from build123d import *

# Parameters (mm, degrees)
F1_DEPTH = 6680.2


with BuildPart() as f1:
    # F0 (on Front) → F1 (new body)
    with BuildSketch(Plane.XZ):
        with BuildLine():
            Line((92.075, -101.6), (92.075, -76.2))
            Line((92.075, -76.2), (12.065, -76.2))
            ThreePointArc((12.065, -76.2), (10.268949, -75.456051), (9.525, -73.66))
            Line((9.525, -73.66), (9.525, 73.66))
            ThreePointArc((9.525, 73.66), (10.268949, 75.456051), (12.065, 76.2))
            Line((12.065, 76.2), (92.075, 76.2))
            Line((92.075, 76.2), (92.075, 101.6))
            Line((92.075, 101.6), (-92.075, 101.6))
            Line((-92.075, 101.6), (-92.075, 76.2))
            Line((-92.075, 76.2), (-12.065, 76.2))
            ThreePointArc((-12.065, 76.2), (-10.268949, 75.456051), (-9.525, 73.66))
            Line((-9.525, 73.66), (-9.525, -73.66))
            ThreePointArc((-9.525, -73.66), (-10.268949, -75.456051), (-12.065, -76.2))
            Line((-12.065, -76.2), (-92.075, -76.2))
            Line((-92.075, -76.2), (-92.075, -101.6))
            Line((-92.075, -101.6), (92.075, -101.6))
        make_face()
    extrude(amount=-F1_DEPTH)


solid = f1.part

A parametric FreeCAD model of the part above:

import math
import FreeCAD as App
import Part
import Sketcher

V = App.Vector
Q = App.Units.Quantity

doc = App.newDocument("Part")
body = doc.addObject("PartDesign::Body", "Body")

# Sketch on XZ plane
sketch1 = body.newObject("Sketcher::SketchObject", "Sketch")
sketch1.AttachmentSupport = (doc.getObject("XZ_Plane"), [""])
sketch1.MapMode = "FlatFace"
sketch1.addGeometry(Part.LineSegment(V(92.1, -101.6, 0), V(92.1, -76.2, 0)), False)
sketch1.addGeometry(Part.LineSegment(V(92.1, -76.2, 0), V(12.1, -76.2, 0)), False)
sketch1.addGeometry(Part.ArcOfCircle(Part.Circle(V(12.1, -73.7, 0), V(0, 0, 1), 2.5), math.radians(-180), math.radians(-90)), False)
sketch1.addGeometry(Part.LineSegment(V(9.5, -73.7, 0), V(9.5, 73.7, 0)), False)
sketch1.addGeometry(Part.ArcOfCircle(Part.Circle(V(12.1, 73.7, 0), V(0, 0, 1), 2.5), math.radians(90), math.radians(180)), False)
sketch1.addGeometry(Part.LineSegment(V(12.1, 76.2, 0), V(92.1, 76.2, 0)), False)
sketch1.addGeometry(Part.LineSegment(V(92.1, 76.2, 0), V(92.1, 101.6, 0)), False)
sketch1.addGeometry(Part.LineSegment(V(92.1, 101.6, 0), V(-92.1, 101.6, 0)), False)
sketch1.addGeometry(Part.LineSegment(V(-92.1, 101.6, 0), V(-92.1, 76.2, 0)), False)
sketch1.addGeometry(Part.LineSegment(V(-92.1, 76.2, 0), V(-12.1, 76.2, 0)), False)
sketch1.addGeometry(Part.ArcOfCircle(Part.Circle(V(-12.1, 73.7, 0), V(0, 0, 1), 2.5), math.radians(0), math.radians(90)), False)
sketch1.addGeometry(Part.LineSegment(V(-9.5, 73.7, 0), V(-9.5, -73.7, 0)), False)
sketch1.addGeometry(Part.ArcOfCircle(Part.Circle(V(-12.1, -73.7, 0), V(0, 0, 1), 2.5), math.radians(-90), math.radians(0)), False)
sketch1.addGeometry(Part.LineSegment(V(-12.1, -76.2, 0), V(-92.1, -76.2, 0)), False)
sketch1.addGeometry(Part.LineSegment(V(-92.1, -76.2, 0), V(-92.1, -101.6, 0)), False)
sketch1.addGeometry(Part.LineSegment(V(-92.1, -101.6, 0), V(92.1, -101.6, 0)), False)
sketch1.addConstraint(Sketcher.Constraint("Coincident", 0, 2, 1, 1))
sketch1.addConstraint(Sketcher.Constraint("Tangent", 1, 2, 2, 2))
sketch1.addConstraint(Sketcher.Constraint("Tangent", 2, 1, 3, 1))
sketch1.addConstraint(Sketcher.Constraint("Tangent", 3, 2, 4, 2))
sketch1.addConstraint(Sketcher.Constraint("Tangent", 4, 1, 5, 1))
sketch1.addConstraint(Sketcher.Constraint("Coincident", 5, 2, 6, 1))
sketch1.addConstraint(Sketcher.Constraint("Coincident", 6, 2, 7, 1))
sketch1.addConstraint(Sketcher.Constraint("Coincident", 7, 2, 8, 1))
sketch1.addConstraint(Sketcher.Constraint("Coincident", 8, 2, 9, 1))
sketch1.addConstraint(Sketcher.Constraint("Tangent", 9, 2, 10, 2))
sketch1.addConstraint(Sketcher.Constraint("Tangent", 10, 1, 11, 1))
sketch1.addConstraint(Sketcher.Constraint("Tangent", 11, 2, 12, 2))
sketch1.addConstraint(Sketcher.Constraint("Tangent", 12, 1, 13, 1))
sketch1.addConstraint(Sketcher.Constraint("Coincident", 13, 2, 14, 1))
sketch1.addConstraint(Sketcher.Constraint("Coincident", 14, 2, 15, 1))
sketch1.addConstraint(Sketcher.Constraint("Coincident", 15, 2, 0, 1))
sketch1.addConstraint(Sketcher.Constraint("Vertical", 0))
sketch1.addConstraint(Sketcher.Constraint("Horizontal", 1))
sketch1.addConstraint(Sketcher.Constraint("Vertical", 3))
sketch1.addConstraint(Sketcher.Constraint("Horizontal", 5))
sketch1.addConstraint(Sketcher.Constraint("Vertical", 6))
sketch1.addConstraint(Sketcher.Constraint("Horizontal", 7))
sketch1.addConstraint(Sketcher.Constraint("Vertical", 8))
sketch1.addConstraint(Sketcher.Constraint("Horizontal", 9))
sketch1.addConstraint(Sketcher.Constraint("Vertical", 11))
sketch1.addConstraint(Sketcher.Constraint("Horizontal", 13))
sketch1.addConstraint(Sketcher.Constraint("Vertical", 14))
sketch1.addConstraint(Sketcher.Constraint("Horizontal", 15))
sketch1.addConstraint(Sketcher.Constraint("Equal", 2, 4))
sketch1.addConstraint(Sketcher.Constraint("Equal", 4, 10))
sketch1.addConstraint(Sketcher.Constraint("Equal", 10, 12))
sketch1.addConstraint(Sketcher.Constraint("Symmetric", 2, 3, 10, 3, -1, 1))
sketch1.addConstraint(Sketcher.Constraint("Symmetric", 5, 2, 13, 2, -1, 1))
sketch1.addConstraint(Sketcher.Constraint("Symmetric", 7, 2, 15, 2, -1, 1))
sketch1.addConstraint(Sketcher.Constraint("Symmetric", 5, 2, 8, 2, -2))
sketch1.addConstraint(Sketcher.Constraint("Radius", 2, Q("0.1 in")))
sketch1.addConstraint(Sketcher.Constraint("DistanceY", 0, 1, 0, 2, Q("1 in")))
sketch1.addConstraint(Sketcher.Constraint("DistanceY", 3, 1, 3, 2, Q("5.8 in")))
sketch1.addConstraint(Sketcher.Constraint("DistanceX", 7, 2, 3, 2, Q("4 in")))
sketch1.addConstraint(Sketcher.Constraint("DistanceX", 1, 2, 1, 1, Q("3.15 in")))
pad1 = body.newObject("PartDesign::Pad", "Pad")
pad1.Profile = sketch1
pad1.Length = Q("263 in")
pad1.Reversed = True

doc.recompute()
